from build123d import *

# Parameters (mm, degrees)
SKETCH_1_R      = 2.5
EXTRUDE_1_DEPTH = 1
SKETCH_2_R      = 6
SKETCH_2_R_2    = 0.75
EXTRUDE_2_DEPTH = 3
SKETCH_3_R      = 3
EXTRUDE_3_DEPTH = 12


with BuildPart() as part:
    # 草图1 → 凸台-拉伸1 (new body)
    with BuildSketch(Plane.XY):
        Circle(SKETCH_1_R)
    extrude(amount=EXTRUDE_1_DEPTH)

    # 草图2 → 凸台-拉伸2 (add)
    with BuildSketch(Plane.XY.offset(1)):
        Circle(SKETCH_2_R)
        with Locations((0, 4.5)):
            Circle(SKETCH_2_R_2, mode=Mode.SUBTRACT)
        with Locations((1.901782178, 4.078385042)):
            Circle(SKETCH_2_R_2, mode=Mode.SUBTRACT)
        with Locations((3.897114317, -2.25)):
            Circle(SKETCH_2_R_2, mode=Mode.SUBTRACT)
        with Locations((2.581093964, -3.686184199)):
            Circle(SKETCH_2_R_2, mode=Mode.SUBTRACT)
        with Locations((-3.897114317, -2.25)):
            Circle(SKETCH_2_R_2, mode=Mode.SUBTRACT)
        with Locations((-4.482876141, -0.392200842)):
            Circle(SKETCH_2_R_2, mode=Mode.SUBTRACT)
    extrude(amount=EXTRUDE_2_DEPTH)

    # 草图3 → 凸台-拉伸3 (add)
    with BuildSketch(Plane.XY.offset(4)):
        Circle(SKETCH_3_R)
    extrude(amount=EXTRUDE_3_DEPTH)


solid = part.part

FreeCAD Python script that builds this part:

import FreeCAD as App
import Part
import Sketcher
from FreeCAD import Vector
Q = App.Units.Quantity

doc = App.newDocument("Part")
body = doc.addObject("PartDesign::Body", "Body")

# Sketch on XY plane
sketch1 = body.newObject("Sketcher::SketchObject", "Sketch")
sketch1.AttachmentSupport = (doc.getObject("XY_Plane"), [""])
sketch1.MapMode = "FlatFace"
sketch1.addGeometry(Part.Circle(Vector(0, 0, 0), Vector(0, 0, 1), 2.5), False)
sketch1.addConstraint([
    Sketcher.Constraint("Coincident", 0, 3, -1, 1),
    Sketcher.Constraint("Diameter", 0, Q("5 mm")),
])
pad1 = body.newObject("PartDesign::Pad", "Pad")
pad1.Profile = sketch1
pad1.Length = 1

# Sketch on XY plane
sketch2 = body.newObject("Sketcher::SketchObject", "Sketch001")
sketch2.AttachmentSupport = (doc.getObject("XY_Plane"), [""])
sketch2.MapMode = "FlatFace"
sketch2.AttachmentOffset = App.Placement(Vector(0, 0, 1), App.Rotation())
sketch2.addGeometry([
    Part.Circle(Vector(0, 0, 0), Vector(0, 0, 1), 6),  # 0
    Part.Circle(Vector(-3.897114, -2.25, 0), Vector(0, 0, 1), 0.75),  # 1
    Part.Circle(Vector(-4.482876, -0.392201, 0), Vector(0, 0, 1), 0.75),  # 2
    Part.Circle(Vector(2.581094, -3.686184, 0), Vector(0, 0, 1), 0.75),  # 3
    Part.Circle(Vector(3.897114, -2.25, 0), Vector(0, 0, 1), 0.75),  # 4
    Part.Circle(Vector(0, 4.5, 0), Vector(0, 0, 1), 0.75),  # 5
    Part.Circle(Vector(1.901782, 4.078385, 0), Vector(0, 0, 1), 0.75),  # 6
], False)
sketch2.addConstraint([
    Sketcher.Constraint("Coincident", 0, 3, -1, 1),
    Sketcher.Constraint("Equal", 1, 2),
    Sketcher.Constraint("Equal", 2, 3),
    Sketcher.Constraint("Equal", 3, 4),
    Sketcher.Constraint("Equal", 4, 5),
    Sketcher.Constraint("Equal", 5, 6),
    Sketcher.Constraint("Symmetric", 1, 3, 4, 3, -2),
    Sketcher.Constraint("PointOnObject", 5, 3, -2),
    Sketcher.Constraint("Diameter", 0, Q("12 mm")),
    Sketcher.Constraint("Diameter", 1, Q("1.5 mm")),
    Sketcher.Constraint("DistanceY", -1, 1, 5, 3, Q("4.5 mm")),
    Sketcher.Constraint("DistanceY", 1, 3, -1, 1, Q("2.25 mm")),
    Sketcher.Constraint("DistanceY", 2, 3, -1, 1, Q("0.392201 mm")),
    Sketcher.Constraint("DistanceX", 2, 3, 1, 3, Q("0.585762 mm")),
    Sketcher.Constraint("DistanceX", 1, 3, 3, 3, Q("6.478208 mm")),
    Sketcher.Constraint("DistanceX", 3, 3, 4, 3, Q("1.31602 mm")),
    Sketcher.Constraint("DistanceX", 2, 3, 6, 3, Q("6.384658 mm")),
    Sketcher.Constraint("DistanceY", 3, 3, 6, 3, Q("7.764569 mm")),
    Sketcher.Constraint("DistanceY", 3, 3, -1, 1, Q("3.686184 mm")),
])
pad2 = body.newObject("PartDesign::Pad", "Pad001")
pad2.Profile = sketch2
pad2.Length = 3

# Sketch on XY plane
sketch3 = body.newObject("Sketcher::SketchObject", "Sketch002")
sketch3.AttachmentSupport = (doc.getObject("XY_Plane"), [""])
sketch3.MapMode = "FlatFace"
sketch3.AttachmentOffset = App.Placement(Vector(0, 0, 4), App.Rotation())
sketch3.addGeometry(Part.Circle(Vector(0, 0, 0), Vector(0, 0, 1), 3), False)
sketch3.addConstraint([
    Sketcher.Constraint("Coincident", 0, 3, -1, 1),
    Sketcher.Constraint("Diameter", 0, Q("6 mm")),
])
pad3 = body.newObject("PartDesign::Pad", "Pad002")
pad3.Profile = sketch3
pad3.Length = 12

doc.recompute()
